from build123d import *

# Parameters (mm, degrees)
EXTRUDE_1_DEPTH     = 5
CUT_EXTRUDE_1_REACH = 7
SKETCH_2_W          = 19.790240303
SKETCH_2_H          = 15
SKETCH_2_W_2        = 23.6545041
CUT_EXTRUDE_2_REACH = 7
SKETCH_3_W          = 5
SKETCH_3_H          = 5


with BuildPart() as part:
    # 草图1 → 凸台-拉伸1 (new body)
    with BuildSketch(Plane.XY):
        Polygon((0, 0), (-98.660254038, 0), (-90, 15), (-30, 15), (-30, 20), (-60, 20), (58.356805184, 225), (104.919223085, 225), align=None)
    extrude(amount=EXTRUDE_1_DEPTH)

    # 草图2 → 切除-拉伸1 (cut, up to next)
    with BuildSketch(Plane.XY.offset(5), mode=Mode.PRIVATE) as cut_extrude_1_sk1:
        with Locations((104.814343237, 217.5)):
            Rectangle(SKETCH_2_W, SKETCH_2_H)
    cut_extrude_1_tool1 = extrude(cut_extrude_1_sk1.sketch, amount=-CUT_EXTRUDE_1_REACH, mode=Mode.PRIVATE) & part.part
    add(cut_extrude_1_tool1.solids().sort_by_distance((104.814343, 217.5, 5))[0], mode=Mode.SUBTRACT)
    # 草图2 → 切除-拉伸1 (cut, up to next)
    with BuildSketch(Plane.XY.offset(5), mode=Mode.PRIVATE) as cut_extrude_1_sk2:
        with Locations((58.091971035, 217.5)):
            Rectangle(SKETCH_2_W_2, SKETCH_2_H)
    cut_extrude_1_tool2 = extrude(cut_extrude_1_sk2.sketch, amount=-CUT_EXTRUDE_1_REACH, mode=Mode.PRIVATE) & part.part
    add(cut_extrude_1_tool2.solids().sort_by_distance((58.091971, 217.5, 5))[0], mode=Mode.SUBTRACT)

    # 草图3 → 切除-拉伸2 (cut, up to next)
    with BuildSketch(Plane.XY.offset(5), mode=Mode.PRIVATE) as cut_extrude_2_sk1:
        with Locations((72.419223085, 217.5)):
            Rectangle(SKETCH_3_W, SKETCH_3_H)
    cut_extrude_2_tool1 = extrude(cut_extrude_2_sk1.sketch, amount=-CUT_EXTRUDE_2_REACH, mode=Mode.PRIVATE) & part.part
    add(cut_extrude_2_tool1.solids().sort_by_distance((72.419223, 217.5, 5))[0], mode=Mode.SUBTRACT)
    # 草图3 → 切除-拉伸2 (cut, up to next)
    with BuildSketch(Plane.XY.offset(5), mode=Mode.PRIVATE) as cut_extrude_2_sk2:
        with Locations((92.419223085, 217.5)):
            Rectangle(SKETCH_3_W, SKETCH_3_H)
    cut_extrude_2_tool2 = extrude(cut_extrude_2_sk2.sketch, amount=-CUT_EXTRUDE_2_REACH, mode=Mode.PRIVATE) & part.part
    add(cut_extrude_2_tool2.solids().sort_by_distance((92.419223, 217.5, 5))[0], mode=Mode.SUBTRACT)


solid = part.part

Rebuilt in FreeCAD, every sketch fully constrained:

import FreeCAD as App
import Part
import Sketcher
from FreeCAD import Vector
Q = App.Units.Quantity

doc = App.newDocument("Part")
body = doc.addObject("PartDesign::Body", "Body")

# Sketch on XY plane
sketch1 = body.newObject("Sketcher::SketchObject", "Sketch")
sketch1.AttachmentSupport = (doc.getObject("XY_Plane"), [""])
sketch1.MapMode = "FlatFace"
sketch1.addGeometry(Part.LineSegment(Vector(-99, 0, 0), Vector(0, 0, 0)), False)
sketch1.addGeometry(Part.LineSegment(Vector(0, 0, 0), Vector(105, 225, 0)), False)
sketch1.addGeometry(Part.LineSegment(Vector(105, 225, 0), Vector(58, 225, 0)), False)
sketch1.addGeometry(Part.LineSegment(Vector(58, 225, 0), Vector(-60, 20, 0)), False)
sketch1.addGeometry(Part.LineSegment(Vector(-60, 20, 0), Vector(-30, 20, 0)), False)
sketch1.addGeometry(Part.LineSegment(Vector(-30, 20, 0), Vector(-30, 15, 0)), False)
sketch1.addGeometry(Part.LineSegment(Vector(-30, 15, 0), Vector(-90, 15, 0)), False)
sketch1.addGeometry(Part.LineSegment(Vector(-90, 15, 0), Vector(-99, 0, 0)), False)
sketch1.addConstraint(Sketcher.Constraint("Coincident", 0, 2, 1, 1))
sketch1.addConstraint(Sketcher.Constraint("Coincident", 1, 2, 2, 1))
sketch1.addConstraint(Sketcher.Constraint("Coincident", 2, 2, 3, 1))
sketch1.addConstraint(Sketcher.Constraint("Coincident", 3, 2, 4, 1))
sketch1.addConstraint(Sketcher.Constraint("Coincident", 4, 2, 5, 1))
sketch1.addConstraint(Sketcher.Constraint("Coincident", 5, 2, 6, 1))
sketch1.addConstraint(Sketcher.Constraint("Coincident", 6, 2, 7, 1))
sketch1.addConstraint(Sketcher.Constraint("Coincident", 7, 2, 0, 1))
sketch1.addConstraint(Sketcher.Constraint("Horizontal", 0))
sketch1.addConstraint(Sketcher.Constraint("Horizontal", 2))
sketch1.addConstraint(Sketcher.Constraint("Horizontal", 4))
sketch1.addConstraint(Sketcher.Constraint("Vertical", 5))
sketch1.addConstraint(Sketcher.Constraint("Horizontal", 6))
sketch1.addConstraint(Sketcher.Constraint("Coincident", 0, 2, -1, 1))
sketch1.addConstraint(Sketcher.Constraint("Parallel", 3, 7))
sketch1.addConstraint(Sketcher.Constraint("DistanceX", 4, 1, 4, 2, 30.0))
sketch1.addConstraint(Sketcher.Constraint("DistanceX", 6, 2, 6, 1, 60.0))
sketch1.addConstraint(Sketcher.Constraint("DistanceY", 5, 2, 5, 1, 5.0))
sketch1.addConstraint(Sketcher.Constraint("Angle", 1, Q("65 deg")))
sketch1.addConstraint(Sketcher.Constraint("Angle", 3, Q("-120 deg")))
sketch1.addConstraint(Sketcher.Constraint("DistanceY", -1, 1, 1, 2, 225.0))
sketch1.addConstraint(Sketcher.Constraint("DistanceX", 3, 2, -1, 1, 60.0))
sketch1.addConstraint(Sketcher.Constraint("DistanceY", -1, 1, 3, 2, 20.0))
pad1 = body.newObject("PartDesign::Pad", "Pad")
pad1.Profile = sketch1
pad1.Length = 5

# Sketch on XY plane
sketch2 = body.newObject("Sketcher::SketchObject", "Sketch001")
sketch2.AttachmentSupport = (doc.getObject("XY_Plane"), [""])
sketch2.MapMode = "FlatFace"
sketch2.AttachmentOffset = App.Placement(Vector(0, 0, 5), App.Rotation())
sketch2.addGeometry(Part.LineSegment(Vector(95, 225, 0), Vector(95, 210, 0)), False)
sketch2.addGeometry(Part.LineSegment(Vector(95, 210, 0), Vector(115, 210, 0)), False)
sketch2.addGeometry(Part.LineSegment(Vector(115, 210, 0), Vector(115, 225, 0)), False)
sketch2.addGeometry(Part.LineSegment(Vector(115, 225, 0), Vector(95, 225, 0)), False)
sketch2.addConstraint(Sketcher.Constraint("Coincident", 0, 2, 1, 1))
sketch2.addConstraint(Sketcher.Constraint("Coincident", 1, 2, 2, 1))
sketch2.addConstraint(Sketcher.Constraint("Coincident", 2, 2, 3, 1))
sketch2.addConstraint(Sketcher.Constraint("Coincident", 3, 2, 0, 1))
sketch2.addConstraint(Sketcher.Constraint("Vertical", 0))
sketch2.addConstraint(Sketcher.Constraint("Horizontal", 1))
sketch2.addConstraint(Sketcher.Constraint("Vertical", 2))
sketch2.addConstraint(Sketcher.Constraint("Horizontal", 3))
sketch2.addConstraint(Sketcher.Constraint("DistanceY", 0, 2, 0, 1, 15.0))
sketch2.addConstraint(Sketcher.Constraint("DistanceY", -1, 1, 0, 2, 210.0))
sketch2.addConstraint(Sketcher.Constraint("DistanceX", 1, 1, 1, 2, 19.79024))
sketch2.addConstraint(Sketcher.Constraint("DistanceX", -1, 1, 0, 2, 94.919223))
pocket1 = body.newObject("PartDesign::Pocket", "Pocket")
pocket1.Profile = sketch2
pocket1.Length = 5

# Sketch on XY plane
sketch3 = body.newObject("Sketcher::SketchObject", "Sketch002")
sketch3.AttachmentSupport = (doc.getObject("XY_Plane"), [""])
sketch3.MapMode = "FlatFace"
sketch3.AttachmentOffset = App.Placement(Vector(0, 0, 5), App.Rotation())
sketch3.addGeometry(Part.LineSegment(Vector(46, 225, 0), Vector(46, 210, 0)), False)
sketch3.addGeometry(Part.LineSegment(Vector(46, 210, 0), Vector(70, 210, 0)), False)
sketch3.addGeometry(Part.LineSegment(Vector(70, 210, 0), Vector(70, 225, 0)), False)
sketch3.addGeometry(Part.LineSegment(Vector(70, 225, 0), Vector(46, 225, 0)), False)
sketch3.addConstraint(Sketcher.Constraint("Coincident", 0, 2, 1, 1))
sketch3.addConstraint(Sketcher.Constraint("Coincident", 1, 2, 2, 1))
sketch3.addConstraint(Sketcher.Constraint("Coincident", 2, 2, 3, 1))
sketch3.addConstraint(Sketcher.Constraint("Coincident", 3, 2, 0, 1))
sketch3.addConstraint(Sketcher.Constraint("Vertical", 0))
sketch3.addConstraint(Sketcher.Constraint("Horizontal", 1))
sketch3.addConstraint(Sketcher.Constraint("Vertical", 2))
sketch3.addConstraint(Sketcher.Constraint("Horizontal", 3))
sketch3.addConstraint(Sketcher.Constraint("DistanceY", 0, 2, 0, 1, 15.0))
sketch3.addConstraint(Sketcher.Constraint("DistanceY", -1, 1, 0, 2, 210.0))
sketch3.addConstraint(Sketcher.Constraint("DistanceX", 1, 1, 1, 2, 23.654504))
sketch3.addConstraint(Sketcher.Constraint("DistanceX", -1, 1, 0, 2, 46.264719))
pocket2 = body.newObject("PartDesign::Pocket", "Pocket001")
pocket2.Profile = sketch3
pocket2.Type = "UpToFirst"

# Sketch on XY plane
sketch4 = body.newObject("Sketcher::SketchObject", "Sketch003")
sketch4.AttachmentSupport = (doc.getObject("XY_Plane"), [""])
sketch4.MapMode = "FlatFace"
sketch4.AttachmentOffset = App.Placement(Vector(0, 0, 5), App.Rotation())
sketch4.addGeometry(Part.LineSegment(Vector(70, 220, 0), Vector(70, 215, 0)), False)
sketch4.addGeometry(Part.LineSegment(Vector(70, 215, 0), Vector(75, 215, 0)), False)
sketch4.addGeometry(Part.LineSegment(Vector(75, 215, 0), Vector(75, 220, 0)), False)
sketch4.addGeometry(Part.LineSegment(Vector(75, 220, 0), Vector(70, 220, 0)), False)
sketch4.addConstraint(Sketcher.Constraint("Coincident", 0, 2, 1, 1))
sketch4.addConstraint(Sketcher.Constraint("Coincident", 1, 2, 2, 1))
sketch4.addConstraint(Sketcher.Constraint("Coincident", 2, 2, 3, 1))
sketch4.addConstraint(Sketcher.Constraint("Coincident", 3, 2, 0, 1))
sketch4.addConstraint(Sketcher.Constraint("Vertical", 0))
sketch4.addConstraint(Sketcher.Constraint("Horizontal", 1))
sketch4.addConstraint(Sketcher.Constraint("Vertical", 2))
sketch4.addConstraint(Sketcher.Constraint("Horizontal", 3))
sketch4.addConstraint(Sketcher.Constraint("Equal", 3, 0))
sketch4.addConstraint(Sketcher.Constraint("DistanceX", 1, 1, 1, 2, 5.0))
sketch4.addConstraint(Sketcher.Constraint("DistanceY", -1, 1, 0, 2, 215.0))
sketch4.addConstraint(Sketcher.Constraint("DistanceX", -1, 1, 0, 2, 69.919223))
pocket3 = body.newObject("PartDesign::Pocket", "Pocket002")
pocket3.Profile = sketch4
pocket3.Type = "UpToFirst"

# Sketch on XY plane
sketch5 = body.newObject("Sketcher::SketchObject", "Sketch004")
sketch5.AttachmentSupport = (doc.getObject("XY_Plane"), [""])
sketch5.MapMode = "FlatFace"
sketch5.AttachmentOffset = App.Placement(Vector(0, 0, 5), App.Rotation())
sketch5.addGeometry(Part.LineSegment(Vector(90, 220, 0), Vector(90, 215, 0)), False)
sketch5.addGeometry(Part.LineSegment(Vector(90, 215, 0), Vector(95, 215, 0)), False)
sketch5.addGeometry(Part.LineSegment(Vector(95, 215, 0), Vector(95, 220, 0)), False)
sketch5.addGeometry(Part.LineSegment(Vector(95, 220, 0), Vector(90, 220, 0)), False)
sketch5.addConstraint(Sketcher.Constraint("Coincident", 0, 2, 1, 1))
sketch5.addConstraint(Sketcher.Constraint("Coincident", 1, 2, 2, 1))
sketch5.addConstraint(Sketcher.Constraint("Coincident", 2, 2, 3, 1))
sketch5.addConstraint(Sketcher.Constraint("Coincident", 3, 2, 0, 1))
sketch5.addConstraint(Sketcher.Constraint("Vertical", 0))
sketch5.addConstraint(Sketcher.Constraint("Horizontal", 1))
sketch5.addConstraint(Sketcher.Constraint("Vertical", 2))
sketch5.addConstraint(Sketcher.Constraint("Horizontal", 3))
sketch5.addConstraint(Sketcher.Constraint("Equal", 3, 0))
sketch5.addConstraint(Sketcher.Constraint("DistanceX", 1, 1, 1, 2, 5.0))
sketch5.addConstraint(Sketcher.Constraint("DistanceY", -1, 1, 0, 2, 215.0))
sketch5.addConstraint(Sketcher.Constraint("DistanceX", -1, 1, 0, 2, 89.919223))
pocket4 = body.newObject("PartDesign::Pocket", "Pocket003")
pocket4.Profile = sketch5
pocket4.Type = "UpToFirst"

doc.recompute()
